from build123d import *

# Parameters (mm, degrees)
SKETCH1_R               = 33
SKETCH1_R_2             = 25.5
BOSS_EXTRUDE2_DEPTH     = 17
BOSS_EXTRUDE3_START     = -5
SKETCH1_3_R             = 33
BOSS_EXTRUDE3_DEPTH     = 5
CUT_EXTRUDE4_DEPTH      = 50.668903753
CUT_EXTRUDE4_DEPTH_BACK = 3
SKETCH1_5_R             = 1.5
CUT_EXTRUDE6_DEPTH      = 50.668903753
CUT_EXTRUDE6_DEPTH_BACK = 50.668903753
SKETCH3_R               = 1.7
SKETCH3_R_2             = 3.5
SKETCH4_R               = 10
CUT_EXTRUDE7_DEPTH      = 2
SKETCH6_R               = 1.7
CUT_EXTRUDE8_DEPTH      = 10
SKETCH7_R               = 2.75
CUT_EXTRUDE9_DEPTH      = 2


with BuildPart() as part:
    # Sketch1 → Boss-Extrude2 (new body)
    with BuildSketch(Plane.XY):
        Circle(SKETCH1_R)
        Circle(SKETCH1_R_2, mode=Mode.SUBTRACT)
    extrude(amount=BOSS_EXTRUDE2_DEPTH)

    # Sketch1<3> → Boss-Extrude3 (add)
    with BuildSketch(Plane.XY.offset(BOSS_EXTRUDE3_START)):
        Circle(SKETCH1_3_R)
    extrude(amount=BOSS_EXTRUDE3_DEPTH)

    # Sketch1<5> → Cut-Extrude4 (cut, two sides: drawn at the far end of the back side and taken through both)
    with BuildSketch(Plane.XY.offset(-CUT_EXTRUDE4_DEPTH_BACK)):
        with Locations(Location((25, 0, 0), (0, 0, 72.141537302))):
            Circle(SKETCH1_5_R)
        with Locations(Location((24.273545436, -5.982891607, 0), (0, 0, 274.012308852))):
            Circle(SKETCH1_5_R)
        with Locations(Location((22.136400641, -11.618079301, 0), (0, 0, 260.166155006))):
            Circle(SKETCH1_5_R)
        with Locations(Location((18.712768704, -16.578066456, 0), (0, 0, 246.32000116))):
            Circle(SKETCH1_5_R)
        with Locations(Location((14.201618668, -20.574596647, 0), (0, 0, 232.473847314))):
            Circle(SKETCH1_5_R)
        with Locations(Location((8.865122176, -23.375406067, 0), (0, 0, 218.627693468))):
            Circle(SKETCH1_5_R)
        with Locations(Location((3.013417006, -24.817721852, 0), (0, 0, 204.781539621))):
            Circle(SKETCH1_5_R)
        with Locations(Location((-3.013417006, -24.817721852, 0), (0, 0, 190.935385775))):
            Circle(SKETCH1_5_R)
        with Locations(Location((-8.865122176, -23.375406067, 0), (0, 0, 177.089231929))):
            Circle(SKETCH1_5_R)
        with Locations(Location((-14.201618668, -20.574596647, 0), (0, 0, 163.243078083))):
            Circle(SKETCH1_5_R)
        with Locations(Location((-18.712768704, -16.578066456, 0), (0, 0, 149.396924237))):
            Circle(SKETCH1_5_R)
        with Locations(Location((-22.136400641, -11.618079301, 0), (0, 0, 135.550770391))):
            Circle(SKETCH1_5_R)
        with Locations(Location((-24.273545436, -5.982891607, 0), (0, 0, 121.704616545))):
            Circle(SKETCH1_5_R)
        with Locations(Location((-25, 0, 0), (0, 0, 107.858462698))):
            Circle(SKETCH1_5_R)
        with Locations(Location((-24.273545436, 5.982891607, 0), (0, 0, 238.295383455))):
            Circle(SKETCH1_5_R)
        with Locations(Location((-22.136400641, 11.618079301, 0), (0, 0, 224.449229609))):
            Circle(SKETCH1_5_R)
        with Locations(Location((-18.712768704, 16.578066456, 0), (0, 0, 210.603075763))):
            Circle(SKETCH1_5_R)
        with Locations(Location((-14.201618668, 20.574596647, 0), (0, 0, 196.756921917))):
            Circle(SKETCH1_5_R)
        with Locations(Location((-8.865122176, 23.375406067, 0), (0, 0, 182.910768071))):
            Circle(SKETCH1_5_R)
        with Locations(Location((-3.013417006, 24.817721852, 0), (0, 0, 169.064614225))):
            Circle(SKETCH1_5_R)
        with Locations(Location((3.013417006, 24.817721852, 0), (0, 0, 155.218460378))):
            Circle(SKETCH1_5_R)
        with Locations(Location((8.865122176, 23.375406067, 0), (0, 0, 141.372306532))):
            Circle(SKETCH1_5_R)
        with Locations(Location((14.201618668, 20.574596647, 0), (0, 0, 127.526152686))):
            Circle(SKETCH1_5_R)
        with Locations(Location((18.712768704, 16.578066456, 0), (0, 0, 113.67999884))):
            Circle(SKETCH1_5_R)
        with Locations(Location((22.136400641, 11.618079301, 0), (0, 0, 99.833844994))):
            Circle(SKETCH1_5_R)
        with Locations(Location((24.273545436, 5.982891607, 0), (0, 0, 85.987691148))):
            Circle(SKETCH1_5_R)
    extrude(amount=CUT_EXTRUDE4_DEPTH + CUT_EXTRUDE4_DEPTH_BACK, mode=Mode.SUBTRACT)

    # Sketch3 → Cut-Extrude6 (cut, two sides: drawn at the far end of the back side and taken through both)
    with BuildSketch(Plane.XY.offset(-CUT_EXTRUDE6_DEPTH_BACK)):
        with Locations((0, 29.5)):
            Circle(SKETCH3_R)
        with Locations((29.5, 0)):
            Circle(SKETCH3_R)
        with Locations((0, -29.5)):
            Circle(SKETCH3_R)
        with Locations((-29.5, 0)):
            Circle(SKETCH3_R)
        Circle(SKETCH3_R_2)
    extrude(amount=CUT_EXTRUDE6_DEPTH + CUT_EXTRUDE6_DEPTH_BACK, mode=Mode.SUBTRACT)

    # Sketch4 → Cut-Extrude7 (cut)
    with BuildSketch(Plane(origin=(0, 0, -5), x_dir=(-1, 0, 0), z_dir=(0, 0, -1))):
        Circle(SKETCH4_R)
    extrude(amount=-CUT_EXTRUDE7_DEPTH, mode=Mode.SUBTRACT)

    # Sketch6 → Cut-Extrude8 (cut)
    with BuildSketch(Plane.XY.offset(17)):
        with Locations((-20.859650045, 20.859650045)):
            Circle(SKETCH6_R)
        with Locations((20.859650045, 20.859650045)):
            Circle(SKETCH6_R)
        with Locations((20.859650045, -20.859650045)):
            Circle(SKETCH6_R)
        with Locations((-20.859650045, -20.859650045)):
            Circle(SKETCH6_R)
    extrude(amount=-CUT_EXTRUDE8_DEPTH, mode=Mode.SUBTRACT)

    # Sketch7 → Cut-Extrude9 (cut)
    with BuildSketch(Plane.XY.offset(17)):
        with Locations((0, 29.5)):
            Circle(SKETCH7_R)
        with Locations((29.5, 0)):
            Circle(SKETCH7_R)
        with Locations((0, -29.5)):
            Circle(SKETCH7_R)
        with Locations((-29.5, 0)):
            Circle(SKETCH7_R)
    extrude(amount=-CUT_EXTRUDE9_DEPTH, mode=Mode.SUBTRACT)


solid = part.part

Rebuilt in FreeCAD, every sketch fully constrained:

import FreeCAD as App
import Part
import Sketcher
from FreeCAD import Vector
Q = App.Units.Quantity

doc = App.newDocument("Part")
params = doc.addObject("Spreadsheet::Sheet", "Params")
for row, (alias, value) in enumerate([
    ("sketch1_diameter", "66 mm"),
    ("sketch1_diameter2", "51 mm"),
    ("pad1_length", "17 mm"),
    ("sketch2_diameter", "66 mm"),
    ("pad2_length", "5 mm"),
    ("sketch3_diameter", "3 mm"),
    ("pocket1_length", "50.668904 mm"),
    ("pocket1_length2", "3 mm"),
    ("sketch4_diameter", "7 mm"),
    ("sketch4_diameter2", "3.4 mm"),
    ("sketch5_diameter", "20 mm"),
    ("pocket3_length", "2 mm"),
    ("sketch6_diameter", "3.4 mm"),
    ("pocket4_length", "10 mm"),
    ("sketch7_diameter", "5.5 mm"),
    ("pocket5_length", "2 mm"),
], start=1):
    params.set(f"A{row}", alias)
    params.set(f"B{row}", "=" + value)
    params.setAlias(f"B{row}", alias)

body = doc.addObject("PartDesign::Body", "Body")

sketch1 = doc.addObject("Sketcher::SketchObject", "Sketch")
body.addObject(sketch1)
sketch1.AttachmentSupport = (doc.XY_Plane, [""])
sketch1.MapMode = "FlatFace"
sketch1.addGeometry([
    Part.Circle(Vector(0, 0, 0), Vector(0, 0, 1), 33),
    Part.Circle(Vector(0, 0, 0), Vector(0, 0, 1), 25.5),
], False)
sketch1.addConstraint([
    Sketcher.Constraint("Coincident", 0, 3, -1, 1),
    Sketcher.Constraint("Coincident", 1, 3, -1, 1),
    Sketcher.Constraint("Diameter", 0, Q("66 mm")),
    Sketcher.Constraint("Diameter", 1, Q("51 mm")),
])
sketch1.setExpression("Constraints[2]", "Params.sketch1_diameter")
sketch1.setExpression("Constraints[3]", "Params.sketch1_diameter2")
pad1 = doc.addObject("PartDesign::Pad", "Pad")
body.addObject(pad1)
pad1.Profile = sketch1
pad1.setExpression("Length", "Params.pad1_length")

sketch2 = doc.addObject("Sketcher::SketchObject", "Sketch001")
body.addObject(sketch2)
sketch2.AttachmentSupport = (doc.XY_Plane, [""])
sketch2.MapMode = "FlatFace"
sketch2.AttachmentOffset = App.Placement(Vector(0, 0, -5), App.Rotation())
sketch2.addGeometry(Part.Circle(Vector(0, 0, 0), Vector(0, 0, 1), 33), False)
sketch2.addConstraint([
    Sketcher.Constraint("Coincident", 0, 3, -1, 1),
    Sketcher.Constraint("Diameter", 0, Q("66 mm")),
])
sketch2.setExpression("Constraints[1]", "Params.sketch2_diameter")
pad2 = doc.addObject("PartDesign::Pad", "Pad001")
body.addObject(pad2)
pad2.Profile = sketch2
pad2.setExpression("Length", "Params.pad2_length")

sketch3 = doc.addObject("Sketcher::SketchObject", "Sketch002")
body.addObject(sketch3)
sketch3.AttachmentSupport = (doc.XY_Plane, [""])
sketch3.MapMode = "FlatFace"
sketch3.addGeometry([
    Part.Circle(Vector(25, 0, 0), Vector(0, 0, 1), 1.5),
    Part.Circle(Vector(24.273545, -5.982892, 0), Vector(0, 0, 1), 1.5),
    Part.Circle(Vector(22.136401, -11.618079, 0), Vector(0, 0, 1), 1.5),
    Part.Circle(Vector(18.712769, -16.578066, 0), Vector(0, 0, 1), 1.5),
    Part.Circle(Vector(14.201619, -20.574597, 0), Vector(0, 0, 1), 1.5),
    Part.Circle(Vector(8.865122, -23.375406, 0), Vector(0, 0, 1), 1.5),
    Part.Circle(Vector(3.013417, -24.817722, 0), Vector(0, 0, 1), 1.5),
    Part.Circle(Vector(-3.013417, -24.817722, 0), Vector(0, 0, 1), 1.5),
    Part.Circle(Vector(-8.865122, -23.375406, 0), Vector(0, 0, 1), 1.5),
    Part.Circle(Vector(-14.201619, -20.574597, 0), Vector(0, 0, 1), 1.5),
    Part.Circle(Vector(-18.712769, -16.578066, 0), Vector(0, 0, 1), 1.5),
    Part.Circle(Vector(-22.136401, -11.618079, 0), Vector(0, 0, 1), 1.5),
    Part.Circle(Vector(-24.273545, -5.982892, 0), Vector(0, 0, 1), 1.5),
    Part.Circle(Vector(-25, 0, 0), Vector(0, 0, 1), 1.5),
    Part.Circle(Vector(-24.273545, 5.982892, 0), Vector(0, 0, 1), 1.5),
    Part.Circle(Vector(-22.136401, 11.618079, 0), Vector(0, 0, 1), 1.5),
    Part.Circle(Vector(-18.712769, 16.578066, 0), Vector(0, 0, 1), 1.5),
    Part.Circle(Vector(-14.201619, 20.574597, 0), Vector(0, 0, 1), 1.5),
    Part.Circle(Vector(-8.865122, 23.375406, 0), Vector(0, 0, 1), 1.5),
    Part.Circle(Vector(-3.013417, 24.817722, 0), Vector(0, 0, 1), 1.5),
    Part.Circle(Vector(3.013417, 24.817722, 0), Vector(0, 0, 1), 1.5),
    Part.Circle(Vector(8.865122, 23.375406, 0), Vector(0, 0, 1), 1.5),
    Part.Circle(Vector(14.201619, 20.574597, 0), Vector(0, 0, 1), 1.5),
    Part.Circle(Vector(18.712769, 16.578066, 0), Vector(0, 0, 1), 1.5),
    Part.Circle(Vector(22.136401, 11.618079, 0), Vector(0, 0, 1), 1.5),
    Part.Circle(Vector(24.273545, 5.982892, 0), Vector(0, 0, 1), 1.5),
], False)
sketch3.addConstraint([
    Sketcher.Constraint("Equal", 0, 1),
    Sketcher.Constraint("Equal", 1, 2),
    Sketcher.Constraint("Equal", 2, 3),
    Sketcher.Constraint("Equal", 3, 4),
    Sketcher.Constraint("Equal", 4, 5),
    Sketcher.Constraint("Equal", 5, 6),
    Sketcher.Constraint("Equal", 6, 7),
    Sketcher.Constraint("Equal", 7, 8),
    Sketcher.Constraint("Equal", 8, 9),
    Sketcher.Constraint("Equal", 9, 10),
    Sketcher.Constraint("Equal", 10, 11),
    Sketcher.Constraint("Equal", 11, 12),
    Sketcher.Constraint("Equal", 12, 13),
    Sketcher.Constraint("Equal", 13, 14),
    Sketcher.Constraint("Equal", 14, 15),
    Sketcher.Constraint("Equal", 15, 16),
    Sketcher.Constraint("Equal", 16, 17),
    Sketcher.Constraint("Equal", 17, 18),
    Sketcher.Constraint("Equal", 18, 19),
    Sketcher.Constraint("Equal", 19, 20),
    Sketcher.Constraint("Equal", 20, 21),
    Sketcher.Constraint("Equal", 21, 22),
    Sketcher.Constraint("Equal", 22, 23),
    Sketcher.Constraint("Equal", 23, 24),
    Sketcher.Constraint("Equal", 24, 25),
    Sketcher.Constraint("Symmetric", 0, 3, 13, 3, -1, 1),
    Sketcher.Constraint("Symmetric", 1, 3, 14, 3, -1, 1),
    Sketcher.Constraint("Symmetric", 2, 3, 15, 3, -1, 1),
    Sketcher.Constraint("Symmetric", 3, 3, 16, 3, -1, 1),
    Sketcher.Constraint("Symmetric", 4, 3, 17, 3, -1, 1),
    Sketcher.Constraint("Symmetric", 5, 3, 18, 3, -1, 1),
    Sketcher.Constraint("Symmetric", 6, 3, 19, 3, -1, 1),
    Sketcher.Constraint("Symmetric", 7, 3, 20, 3, -1, 1),
    Sketcher.Constraint("Symmetric", 8, 3, 21, 3, -1, 1),
    Sketcher.Constraint("Symmetric", 9, 3, 22, 3, -1, 1),
    Sketcher.Constraint("Symmetric", 10, 3, 23, 3, -1, 1),
    Sketcher.Constraint("Symmetric", 11, 3, 24, 3, -1, 1),
    Sketcher.Constraint("Symmetric", 12, 3, 25, 3, -1, 1),
    Sketcher.Constraint("Symmetric", 6, 3, 7, 3, -2),
    Sketcher.Constraint("Symmetric", 5, 3, 8, 3, -2),
    Sketcher.Constraint("Symmetric", 4, 3, 9, 3, -2),
    Sketcher.Constraint("Symmetric", 3, 3, 10, 3, -2),
    Sketcher.Constraint("Symmetric", 2, 3, 11, 3, -2),
    Sketcher.Constraint("Symmetric", 1, 3, 12, 3, -2),
    Sketcher.Constraint("PointOnObject", 0, 3, -1),
    Sketcher.Constraint("Diameter", 0, Q("3 mm")),
    Sketcher.Constraint("DistanceX", -1, 1, 0, 3, Q("25 mm")),
    Sketcher.Constraint("DistanceX", -1, 1, 2, 3, Q("22.136401 mm")),
    Sketcher.Constraint("DistanceX", 6, 3, 4, 3, Q("11.188202 mm")),
    Sketcher.Constraint("DistanceY", 1, 3, -1, 1, Q("5.982892 mm")),
    Sketcher.Constraint("DistanceY", 2, 3, -1, 1, Q("11.618079 mm")),
    Sketcher.Constraint("DistanceX", -1, 1, 3, 3, Q("18.712769 mm")),
    Sketcher.Constraint("DistanceX", -1, 1, 4, 3, Q("14.201619 mm")),
    Sketcher.Constraint("DistanceY", 6, 3, -1, 1, Q("24.817722 mm")),
    Sketcher.Constraint("DistanceY", 4, 3, 3, 3, Q("3.99653 mm")),
    Sketcher.Constraint("DistanceY", 5, 3, 4, 3, Q("2.800809 mm")),
    Sketcher.Constraint("DistanceX", 5, 3, 2, 3, Q("13.271278 mm")),
    Sketcher.Constraint("DistanceX", 6, 3, 1, 3, Q("21.260128 mm")),
    Sketcher.Constraint("DistanceY", 10, 3, 14, 3, Q("22.560958 mm")),
])
sketch3.setExpression("Constraints[45]", "Params.sketch3_diameter")
pocket1 = doc.addObject("PartDesign::Pocket", "Pocket")
body.addObject(pocket1)
pocket1.Profile = sketch3
pocket1.Type = "TwoLengths"
pocket1.setExpression("Length", "Params.pocket1_length")
pocket1.setExpression("Length2", "Params.pocket1_length2")
pocket1.Reversed = True

sketch4 = doc.addObject("Sketcher::SketchObject", "Sketch003")
body.addObject(sketch4)
sketch4.AttachmentSupport = (doc.XY_Plane, [""])
sketch4.MapMode = "FlatFace"
sketch4.addGeometry([
    Part.Circle(Vector(0, 29.5, 0), Vector(0, 0, 1), 1.7),
    Part.Circle(Vector(29.5, 0, 0), Vector(0, 0, 1), 1.7),
    Part.Circle(Vector(0, -29.5, 0), Vector(0, 0, 1), 1.7),
    Part.Circle(Vector(-29.5, 0, 0), Vector(0, 0, 1), 1.7),
    Part.Circle(Vector(0, 0, 0), Vector(0, 0, 1), 3.5),
], False)
sketch4.addConstraint([
    Sketcher.Constraint("Coincident", 4, 3, -1, 1),
    Sketcher.Constraint("Equal", 0, 1),
    Sketcher.Constraint("Equal", 1, 2),
    Sketcher.Constraint("Equal", 2, 3),
    Sketcher.Constraint("Symmetric", 0, 3, 2, 3, -1, 1),
    Sketcher.Constraint("Symmetric", 1, 3, 3, 3, -1, 1),
    Sketcher.Constraint("PointOnObject", 0, 3, -2),
    Sketcher.Constraint("PointOnObject", 1, 3, -1),
    Sketcher.Constraint("Diameter", 4, Q("7 mm")),
    Sketcher.Constraint("Diameter", 0, Q("3.4 mm")),
    Sketcher.Constraint("DistanceY", 2, 3, 0, 3, Q("59 mm")),
    Sketcher.Constraint("DistanceX", 3, 3, 1, 3, Q("59 mm")),
])
sketch4.setExpression("Constraints[8]", "Params.sketch4_diameter")
sketch4.setExpression("Constraints[9]", "Params.sketch4_diameter2")
pocket2 = doc.addObject("PartDesign::Pocket", "Pocket001")
body.addObject(pocket2)
pocket2.Profile = sketch4
pocket2.Type = "ThroughAll"
pocket2.Midplane = True

sketch5 = doc.addObject("Sketcher::SketchObject", "Sketch004")
body.addObject(sketch5)
sketch5.AttachmentSupport = (doc.XY_Plane, [""])
sketch5.MapMode = "FlatFace"
sketch5.AttachmentOffset = App.Placement(Vector(0, 0, -5), App.Rotation())
sketch5.addGeometry(Part.Circle(Vector(0, 0, 0), Vector(0, 0, 1), 10), False)
sketch5.addConstraint([
    Sketcher.Constraint("Coincident", 0, 3, -1, 1),
    Sketcher.Constraint("Diameter", 0, Q("20 mm")),
])
sketch5.setExpression("Constraints[1]", "Params.sketch5_diameter")
pocket3 = doc.addObject("PartDesign::Pocket", "Pocket002")
body.addObject(pocket3)
pocket3.Profile = sketch5
pocket3.setExpression("Length", "Params.pocket3_length")
pocket3.Reversed = True

sketch6 = doc.addObject("Sketcher::SketchObject", "Sketch005")
body.addObject(sketch6)
sketch6.AttachmentSupport = (doc.XY_Plane, [""])
sketch6.MapMode = "FlatFace"
sketch6.AttachmentOffset = App.Placement(Vector(0, 0, 17), App.Rotation())
sketch6.addGeometry([
    Part.Circle(Vector(-20.85965, 20.85965, 0), Vector(0, 0, 1), 1.7),
    Part.Circle(Vector(20.85965, 20.85965, 0), Vector(0, 0, 1), 1.7),
    Part.Circle(Vector(20.85965, -20.85965, 0), Vector(0, 0, 1), 1.7),
    Part.Circle(Vector(-20.85965, -20.85965, 0), Vector(0, 0, 1), 1.7),
], False)
sketch6.addConstraint([
    Sketcher.Constraint("Equal", 0, 1),
    Sketcher.Constraint("Equal", 1, 2),
    Sketcher.Constraint("Equal", 2, 3),
    Sketcher.Constraint("Symmetric", 0, 3, 2, 3, -1, 1),
    Sketcher.Constraint("Symmetric", 1, 3, 3, 3, -1, 1),
    Sketcher.Constraint("Symmetric", 0, 3, 1, 3, -2),
    Sketcher.Constraint("Diameter", 0, Q("3.4 mm")),
    Sketcher.Constraint("DistanceX", 0, 3, 1, 3, Q("41.7193 mm")),
    Sketcher.Constraint("DistanceY", 2, 3, 1, 3, Q("41.7193 mm")),
])
sketch6.setExpression("Constraints[6]", "Params.sketch6_diameter")
pocket4 = doc.addObject("PartDesign::Pocket", "Pocket003")
body.addObject(pocket4)
pocket4.Profile = sketch6
pocket4.setExpression("Length", "Params.pocket4_length")

sketch7 = doc.addObject("Sketcher::SketchObject", "Sketch006")
body.addObject(sketch7)
sketch7.AttachmentSupport = (doc.XY_Plane, [""])
sketch7.MapMode = "FlatFace"
sketch7.AttachmentOffset = App.Placement(Vector(0, 0, 17), App.Rotation())
sketch7.addGeometry([
    Part.Circle(Vector(0, 29.5, 0), Vector(0, 0, 1), 2.75),
    Part.Circle(Vector(29.5, 0, 0), Vector(0, 0, 1), 2.75),
    Part.Circle(Vector(0, -29.5, 0), Vector(0, 0, 1), 2.75),
    Part.Circle(Vector(-29.5, 0, 0), Vector(0, 0, 1), 2.75),
], False)
sketch7.addConstraint([
    Sketcher.Constraint("Equal", 0, 1),
    Sketcher.Constraint("Equal", 1, 2),
    Sketcher.Constraint("Equal", 2, 3),
    Sketcher.Constraint("Symmetric", 0, 3, 2, 3, -1, 1),
    Sketcher.Constraint("Symmetric", 1, 3, 3, 3, -1, 1),
    Sketcher.Constraint("PointOnObject", 0, 3, -2),
    Sketcher.Constraint("PointOnObject", 1, 3, -1),
    Sketcher.Constraint("Diameter", 0, Q("5.5 mm")),
    Sketcher.Constraint("DistanceY", 2, 3, 0, 3, Q("59 mm")),
    Sketcher.Constraint("DistanceX", 3, 3, 1, 3, Q("59 mm")),
])
sketch7.setExpression("Constraints[7]", "Params.sketch7_diameter")
pocket5 = doc.addObject("PartDesign::Pocket", "Pocket004")
body.addObject(pocket5)
pocket5.Profile = sketch7
pocket5.setExpression("Length", "Params.pocket5_length")

doc.recompute()
